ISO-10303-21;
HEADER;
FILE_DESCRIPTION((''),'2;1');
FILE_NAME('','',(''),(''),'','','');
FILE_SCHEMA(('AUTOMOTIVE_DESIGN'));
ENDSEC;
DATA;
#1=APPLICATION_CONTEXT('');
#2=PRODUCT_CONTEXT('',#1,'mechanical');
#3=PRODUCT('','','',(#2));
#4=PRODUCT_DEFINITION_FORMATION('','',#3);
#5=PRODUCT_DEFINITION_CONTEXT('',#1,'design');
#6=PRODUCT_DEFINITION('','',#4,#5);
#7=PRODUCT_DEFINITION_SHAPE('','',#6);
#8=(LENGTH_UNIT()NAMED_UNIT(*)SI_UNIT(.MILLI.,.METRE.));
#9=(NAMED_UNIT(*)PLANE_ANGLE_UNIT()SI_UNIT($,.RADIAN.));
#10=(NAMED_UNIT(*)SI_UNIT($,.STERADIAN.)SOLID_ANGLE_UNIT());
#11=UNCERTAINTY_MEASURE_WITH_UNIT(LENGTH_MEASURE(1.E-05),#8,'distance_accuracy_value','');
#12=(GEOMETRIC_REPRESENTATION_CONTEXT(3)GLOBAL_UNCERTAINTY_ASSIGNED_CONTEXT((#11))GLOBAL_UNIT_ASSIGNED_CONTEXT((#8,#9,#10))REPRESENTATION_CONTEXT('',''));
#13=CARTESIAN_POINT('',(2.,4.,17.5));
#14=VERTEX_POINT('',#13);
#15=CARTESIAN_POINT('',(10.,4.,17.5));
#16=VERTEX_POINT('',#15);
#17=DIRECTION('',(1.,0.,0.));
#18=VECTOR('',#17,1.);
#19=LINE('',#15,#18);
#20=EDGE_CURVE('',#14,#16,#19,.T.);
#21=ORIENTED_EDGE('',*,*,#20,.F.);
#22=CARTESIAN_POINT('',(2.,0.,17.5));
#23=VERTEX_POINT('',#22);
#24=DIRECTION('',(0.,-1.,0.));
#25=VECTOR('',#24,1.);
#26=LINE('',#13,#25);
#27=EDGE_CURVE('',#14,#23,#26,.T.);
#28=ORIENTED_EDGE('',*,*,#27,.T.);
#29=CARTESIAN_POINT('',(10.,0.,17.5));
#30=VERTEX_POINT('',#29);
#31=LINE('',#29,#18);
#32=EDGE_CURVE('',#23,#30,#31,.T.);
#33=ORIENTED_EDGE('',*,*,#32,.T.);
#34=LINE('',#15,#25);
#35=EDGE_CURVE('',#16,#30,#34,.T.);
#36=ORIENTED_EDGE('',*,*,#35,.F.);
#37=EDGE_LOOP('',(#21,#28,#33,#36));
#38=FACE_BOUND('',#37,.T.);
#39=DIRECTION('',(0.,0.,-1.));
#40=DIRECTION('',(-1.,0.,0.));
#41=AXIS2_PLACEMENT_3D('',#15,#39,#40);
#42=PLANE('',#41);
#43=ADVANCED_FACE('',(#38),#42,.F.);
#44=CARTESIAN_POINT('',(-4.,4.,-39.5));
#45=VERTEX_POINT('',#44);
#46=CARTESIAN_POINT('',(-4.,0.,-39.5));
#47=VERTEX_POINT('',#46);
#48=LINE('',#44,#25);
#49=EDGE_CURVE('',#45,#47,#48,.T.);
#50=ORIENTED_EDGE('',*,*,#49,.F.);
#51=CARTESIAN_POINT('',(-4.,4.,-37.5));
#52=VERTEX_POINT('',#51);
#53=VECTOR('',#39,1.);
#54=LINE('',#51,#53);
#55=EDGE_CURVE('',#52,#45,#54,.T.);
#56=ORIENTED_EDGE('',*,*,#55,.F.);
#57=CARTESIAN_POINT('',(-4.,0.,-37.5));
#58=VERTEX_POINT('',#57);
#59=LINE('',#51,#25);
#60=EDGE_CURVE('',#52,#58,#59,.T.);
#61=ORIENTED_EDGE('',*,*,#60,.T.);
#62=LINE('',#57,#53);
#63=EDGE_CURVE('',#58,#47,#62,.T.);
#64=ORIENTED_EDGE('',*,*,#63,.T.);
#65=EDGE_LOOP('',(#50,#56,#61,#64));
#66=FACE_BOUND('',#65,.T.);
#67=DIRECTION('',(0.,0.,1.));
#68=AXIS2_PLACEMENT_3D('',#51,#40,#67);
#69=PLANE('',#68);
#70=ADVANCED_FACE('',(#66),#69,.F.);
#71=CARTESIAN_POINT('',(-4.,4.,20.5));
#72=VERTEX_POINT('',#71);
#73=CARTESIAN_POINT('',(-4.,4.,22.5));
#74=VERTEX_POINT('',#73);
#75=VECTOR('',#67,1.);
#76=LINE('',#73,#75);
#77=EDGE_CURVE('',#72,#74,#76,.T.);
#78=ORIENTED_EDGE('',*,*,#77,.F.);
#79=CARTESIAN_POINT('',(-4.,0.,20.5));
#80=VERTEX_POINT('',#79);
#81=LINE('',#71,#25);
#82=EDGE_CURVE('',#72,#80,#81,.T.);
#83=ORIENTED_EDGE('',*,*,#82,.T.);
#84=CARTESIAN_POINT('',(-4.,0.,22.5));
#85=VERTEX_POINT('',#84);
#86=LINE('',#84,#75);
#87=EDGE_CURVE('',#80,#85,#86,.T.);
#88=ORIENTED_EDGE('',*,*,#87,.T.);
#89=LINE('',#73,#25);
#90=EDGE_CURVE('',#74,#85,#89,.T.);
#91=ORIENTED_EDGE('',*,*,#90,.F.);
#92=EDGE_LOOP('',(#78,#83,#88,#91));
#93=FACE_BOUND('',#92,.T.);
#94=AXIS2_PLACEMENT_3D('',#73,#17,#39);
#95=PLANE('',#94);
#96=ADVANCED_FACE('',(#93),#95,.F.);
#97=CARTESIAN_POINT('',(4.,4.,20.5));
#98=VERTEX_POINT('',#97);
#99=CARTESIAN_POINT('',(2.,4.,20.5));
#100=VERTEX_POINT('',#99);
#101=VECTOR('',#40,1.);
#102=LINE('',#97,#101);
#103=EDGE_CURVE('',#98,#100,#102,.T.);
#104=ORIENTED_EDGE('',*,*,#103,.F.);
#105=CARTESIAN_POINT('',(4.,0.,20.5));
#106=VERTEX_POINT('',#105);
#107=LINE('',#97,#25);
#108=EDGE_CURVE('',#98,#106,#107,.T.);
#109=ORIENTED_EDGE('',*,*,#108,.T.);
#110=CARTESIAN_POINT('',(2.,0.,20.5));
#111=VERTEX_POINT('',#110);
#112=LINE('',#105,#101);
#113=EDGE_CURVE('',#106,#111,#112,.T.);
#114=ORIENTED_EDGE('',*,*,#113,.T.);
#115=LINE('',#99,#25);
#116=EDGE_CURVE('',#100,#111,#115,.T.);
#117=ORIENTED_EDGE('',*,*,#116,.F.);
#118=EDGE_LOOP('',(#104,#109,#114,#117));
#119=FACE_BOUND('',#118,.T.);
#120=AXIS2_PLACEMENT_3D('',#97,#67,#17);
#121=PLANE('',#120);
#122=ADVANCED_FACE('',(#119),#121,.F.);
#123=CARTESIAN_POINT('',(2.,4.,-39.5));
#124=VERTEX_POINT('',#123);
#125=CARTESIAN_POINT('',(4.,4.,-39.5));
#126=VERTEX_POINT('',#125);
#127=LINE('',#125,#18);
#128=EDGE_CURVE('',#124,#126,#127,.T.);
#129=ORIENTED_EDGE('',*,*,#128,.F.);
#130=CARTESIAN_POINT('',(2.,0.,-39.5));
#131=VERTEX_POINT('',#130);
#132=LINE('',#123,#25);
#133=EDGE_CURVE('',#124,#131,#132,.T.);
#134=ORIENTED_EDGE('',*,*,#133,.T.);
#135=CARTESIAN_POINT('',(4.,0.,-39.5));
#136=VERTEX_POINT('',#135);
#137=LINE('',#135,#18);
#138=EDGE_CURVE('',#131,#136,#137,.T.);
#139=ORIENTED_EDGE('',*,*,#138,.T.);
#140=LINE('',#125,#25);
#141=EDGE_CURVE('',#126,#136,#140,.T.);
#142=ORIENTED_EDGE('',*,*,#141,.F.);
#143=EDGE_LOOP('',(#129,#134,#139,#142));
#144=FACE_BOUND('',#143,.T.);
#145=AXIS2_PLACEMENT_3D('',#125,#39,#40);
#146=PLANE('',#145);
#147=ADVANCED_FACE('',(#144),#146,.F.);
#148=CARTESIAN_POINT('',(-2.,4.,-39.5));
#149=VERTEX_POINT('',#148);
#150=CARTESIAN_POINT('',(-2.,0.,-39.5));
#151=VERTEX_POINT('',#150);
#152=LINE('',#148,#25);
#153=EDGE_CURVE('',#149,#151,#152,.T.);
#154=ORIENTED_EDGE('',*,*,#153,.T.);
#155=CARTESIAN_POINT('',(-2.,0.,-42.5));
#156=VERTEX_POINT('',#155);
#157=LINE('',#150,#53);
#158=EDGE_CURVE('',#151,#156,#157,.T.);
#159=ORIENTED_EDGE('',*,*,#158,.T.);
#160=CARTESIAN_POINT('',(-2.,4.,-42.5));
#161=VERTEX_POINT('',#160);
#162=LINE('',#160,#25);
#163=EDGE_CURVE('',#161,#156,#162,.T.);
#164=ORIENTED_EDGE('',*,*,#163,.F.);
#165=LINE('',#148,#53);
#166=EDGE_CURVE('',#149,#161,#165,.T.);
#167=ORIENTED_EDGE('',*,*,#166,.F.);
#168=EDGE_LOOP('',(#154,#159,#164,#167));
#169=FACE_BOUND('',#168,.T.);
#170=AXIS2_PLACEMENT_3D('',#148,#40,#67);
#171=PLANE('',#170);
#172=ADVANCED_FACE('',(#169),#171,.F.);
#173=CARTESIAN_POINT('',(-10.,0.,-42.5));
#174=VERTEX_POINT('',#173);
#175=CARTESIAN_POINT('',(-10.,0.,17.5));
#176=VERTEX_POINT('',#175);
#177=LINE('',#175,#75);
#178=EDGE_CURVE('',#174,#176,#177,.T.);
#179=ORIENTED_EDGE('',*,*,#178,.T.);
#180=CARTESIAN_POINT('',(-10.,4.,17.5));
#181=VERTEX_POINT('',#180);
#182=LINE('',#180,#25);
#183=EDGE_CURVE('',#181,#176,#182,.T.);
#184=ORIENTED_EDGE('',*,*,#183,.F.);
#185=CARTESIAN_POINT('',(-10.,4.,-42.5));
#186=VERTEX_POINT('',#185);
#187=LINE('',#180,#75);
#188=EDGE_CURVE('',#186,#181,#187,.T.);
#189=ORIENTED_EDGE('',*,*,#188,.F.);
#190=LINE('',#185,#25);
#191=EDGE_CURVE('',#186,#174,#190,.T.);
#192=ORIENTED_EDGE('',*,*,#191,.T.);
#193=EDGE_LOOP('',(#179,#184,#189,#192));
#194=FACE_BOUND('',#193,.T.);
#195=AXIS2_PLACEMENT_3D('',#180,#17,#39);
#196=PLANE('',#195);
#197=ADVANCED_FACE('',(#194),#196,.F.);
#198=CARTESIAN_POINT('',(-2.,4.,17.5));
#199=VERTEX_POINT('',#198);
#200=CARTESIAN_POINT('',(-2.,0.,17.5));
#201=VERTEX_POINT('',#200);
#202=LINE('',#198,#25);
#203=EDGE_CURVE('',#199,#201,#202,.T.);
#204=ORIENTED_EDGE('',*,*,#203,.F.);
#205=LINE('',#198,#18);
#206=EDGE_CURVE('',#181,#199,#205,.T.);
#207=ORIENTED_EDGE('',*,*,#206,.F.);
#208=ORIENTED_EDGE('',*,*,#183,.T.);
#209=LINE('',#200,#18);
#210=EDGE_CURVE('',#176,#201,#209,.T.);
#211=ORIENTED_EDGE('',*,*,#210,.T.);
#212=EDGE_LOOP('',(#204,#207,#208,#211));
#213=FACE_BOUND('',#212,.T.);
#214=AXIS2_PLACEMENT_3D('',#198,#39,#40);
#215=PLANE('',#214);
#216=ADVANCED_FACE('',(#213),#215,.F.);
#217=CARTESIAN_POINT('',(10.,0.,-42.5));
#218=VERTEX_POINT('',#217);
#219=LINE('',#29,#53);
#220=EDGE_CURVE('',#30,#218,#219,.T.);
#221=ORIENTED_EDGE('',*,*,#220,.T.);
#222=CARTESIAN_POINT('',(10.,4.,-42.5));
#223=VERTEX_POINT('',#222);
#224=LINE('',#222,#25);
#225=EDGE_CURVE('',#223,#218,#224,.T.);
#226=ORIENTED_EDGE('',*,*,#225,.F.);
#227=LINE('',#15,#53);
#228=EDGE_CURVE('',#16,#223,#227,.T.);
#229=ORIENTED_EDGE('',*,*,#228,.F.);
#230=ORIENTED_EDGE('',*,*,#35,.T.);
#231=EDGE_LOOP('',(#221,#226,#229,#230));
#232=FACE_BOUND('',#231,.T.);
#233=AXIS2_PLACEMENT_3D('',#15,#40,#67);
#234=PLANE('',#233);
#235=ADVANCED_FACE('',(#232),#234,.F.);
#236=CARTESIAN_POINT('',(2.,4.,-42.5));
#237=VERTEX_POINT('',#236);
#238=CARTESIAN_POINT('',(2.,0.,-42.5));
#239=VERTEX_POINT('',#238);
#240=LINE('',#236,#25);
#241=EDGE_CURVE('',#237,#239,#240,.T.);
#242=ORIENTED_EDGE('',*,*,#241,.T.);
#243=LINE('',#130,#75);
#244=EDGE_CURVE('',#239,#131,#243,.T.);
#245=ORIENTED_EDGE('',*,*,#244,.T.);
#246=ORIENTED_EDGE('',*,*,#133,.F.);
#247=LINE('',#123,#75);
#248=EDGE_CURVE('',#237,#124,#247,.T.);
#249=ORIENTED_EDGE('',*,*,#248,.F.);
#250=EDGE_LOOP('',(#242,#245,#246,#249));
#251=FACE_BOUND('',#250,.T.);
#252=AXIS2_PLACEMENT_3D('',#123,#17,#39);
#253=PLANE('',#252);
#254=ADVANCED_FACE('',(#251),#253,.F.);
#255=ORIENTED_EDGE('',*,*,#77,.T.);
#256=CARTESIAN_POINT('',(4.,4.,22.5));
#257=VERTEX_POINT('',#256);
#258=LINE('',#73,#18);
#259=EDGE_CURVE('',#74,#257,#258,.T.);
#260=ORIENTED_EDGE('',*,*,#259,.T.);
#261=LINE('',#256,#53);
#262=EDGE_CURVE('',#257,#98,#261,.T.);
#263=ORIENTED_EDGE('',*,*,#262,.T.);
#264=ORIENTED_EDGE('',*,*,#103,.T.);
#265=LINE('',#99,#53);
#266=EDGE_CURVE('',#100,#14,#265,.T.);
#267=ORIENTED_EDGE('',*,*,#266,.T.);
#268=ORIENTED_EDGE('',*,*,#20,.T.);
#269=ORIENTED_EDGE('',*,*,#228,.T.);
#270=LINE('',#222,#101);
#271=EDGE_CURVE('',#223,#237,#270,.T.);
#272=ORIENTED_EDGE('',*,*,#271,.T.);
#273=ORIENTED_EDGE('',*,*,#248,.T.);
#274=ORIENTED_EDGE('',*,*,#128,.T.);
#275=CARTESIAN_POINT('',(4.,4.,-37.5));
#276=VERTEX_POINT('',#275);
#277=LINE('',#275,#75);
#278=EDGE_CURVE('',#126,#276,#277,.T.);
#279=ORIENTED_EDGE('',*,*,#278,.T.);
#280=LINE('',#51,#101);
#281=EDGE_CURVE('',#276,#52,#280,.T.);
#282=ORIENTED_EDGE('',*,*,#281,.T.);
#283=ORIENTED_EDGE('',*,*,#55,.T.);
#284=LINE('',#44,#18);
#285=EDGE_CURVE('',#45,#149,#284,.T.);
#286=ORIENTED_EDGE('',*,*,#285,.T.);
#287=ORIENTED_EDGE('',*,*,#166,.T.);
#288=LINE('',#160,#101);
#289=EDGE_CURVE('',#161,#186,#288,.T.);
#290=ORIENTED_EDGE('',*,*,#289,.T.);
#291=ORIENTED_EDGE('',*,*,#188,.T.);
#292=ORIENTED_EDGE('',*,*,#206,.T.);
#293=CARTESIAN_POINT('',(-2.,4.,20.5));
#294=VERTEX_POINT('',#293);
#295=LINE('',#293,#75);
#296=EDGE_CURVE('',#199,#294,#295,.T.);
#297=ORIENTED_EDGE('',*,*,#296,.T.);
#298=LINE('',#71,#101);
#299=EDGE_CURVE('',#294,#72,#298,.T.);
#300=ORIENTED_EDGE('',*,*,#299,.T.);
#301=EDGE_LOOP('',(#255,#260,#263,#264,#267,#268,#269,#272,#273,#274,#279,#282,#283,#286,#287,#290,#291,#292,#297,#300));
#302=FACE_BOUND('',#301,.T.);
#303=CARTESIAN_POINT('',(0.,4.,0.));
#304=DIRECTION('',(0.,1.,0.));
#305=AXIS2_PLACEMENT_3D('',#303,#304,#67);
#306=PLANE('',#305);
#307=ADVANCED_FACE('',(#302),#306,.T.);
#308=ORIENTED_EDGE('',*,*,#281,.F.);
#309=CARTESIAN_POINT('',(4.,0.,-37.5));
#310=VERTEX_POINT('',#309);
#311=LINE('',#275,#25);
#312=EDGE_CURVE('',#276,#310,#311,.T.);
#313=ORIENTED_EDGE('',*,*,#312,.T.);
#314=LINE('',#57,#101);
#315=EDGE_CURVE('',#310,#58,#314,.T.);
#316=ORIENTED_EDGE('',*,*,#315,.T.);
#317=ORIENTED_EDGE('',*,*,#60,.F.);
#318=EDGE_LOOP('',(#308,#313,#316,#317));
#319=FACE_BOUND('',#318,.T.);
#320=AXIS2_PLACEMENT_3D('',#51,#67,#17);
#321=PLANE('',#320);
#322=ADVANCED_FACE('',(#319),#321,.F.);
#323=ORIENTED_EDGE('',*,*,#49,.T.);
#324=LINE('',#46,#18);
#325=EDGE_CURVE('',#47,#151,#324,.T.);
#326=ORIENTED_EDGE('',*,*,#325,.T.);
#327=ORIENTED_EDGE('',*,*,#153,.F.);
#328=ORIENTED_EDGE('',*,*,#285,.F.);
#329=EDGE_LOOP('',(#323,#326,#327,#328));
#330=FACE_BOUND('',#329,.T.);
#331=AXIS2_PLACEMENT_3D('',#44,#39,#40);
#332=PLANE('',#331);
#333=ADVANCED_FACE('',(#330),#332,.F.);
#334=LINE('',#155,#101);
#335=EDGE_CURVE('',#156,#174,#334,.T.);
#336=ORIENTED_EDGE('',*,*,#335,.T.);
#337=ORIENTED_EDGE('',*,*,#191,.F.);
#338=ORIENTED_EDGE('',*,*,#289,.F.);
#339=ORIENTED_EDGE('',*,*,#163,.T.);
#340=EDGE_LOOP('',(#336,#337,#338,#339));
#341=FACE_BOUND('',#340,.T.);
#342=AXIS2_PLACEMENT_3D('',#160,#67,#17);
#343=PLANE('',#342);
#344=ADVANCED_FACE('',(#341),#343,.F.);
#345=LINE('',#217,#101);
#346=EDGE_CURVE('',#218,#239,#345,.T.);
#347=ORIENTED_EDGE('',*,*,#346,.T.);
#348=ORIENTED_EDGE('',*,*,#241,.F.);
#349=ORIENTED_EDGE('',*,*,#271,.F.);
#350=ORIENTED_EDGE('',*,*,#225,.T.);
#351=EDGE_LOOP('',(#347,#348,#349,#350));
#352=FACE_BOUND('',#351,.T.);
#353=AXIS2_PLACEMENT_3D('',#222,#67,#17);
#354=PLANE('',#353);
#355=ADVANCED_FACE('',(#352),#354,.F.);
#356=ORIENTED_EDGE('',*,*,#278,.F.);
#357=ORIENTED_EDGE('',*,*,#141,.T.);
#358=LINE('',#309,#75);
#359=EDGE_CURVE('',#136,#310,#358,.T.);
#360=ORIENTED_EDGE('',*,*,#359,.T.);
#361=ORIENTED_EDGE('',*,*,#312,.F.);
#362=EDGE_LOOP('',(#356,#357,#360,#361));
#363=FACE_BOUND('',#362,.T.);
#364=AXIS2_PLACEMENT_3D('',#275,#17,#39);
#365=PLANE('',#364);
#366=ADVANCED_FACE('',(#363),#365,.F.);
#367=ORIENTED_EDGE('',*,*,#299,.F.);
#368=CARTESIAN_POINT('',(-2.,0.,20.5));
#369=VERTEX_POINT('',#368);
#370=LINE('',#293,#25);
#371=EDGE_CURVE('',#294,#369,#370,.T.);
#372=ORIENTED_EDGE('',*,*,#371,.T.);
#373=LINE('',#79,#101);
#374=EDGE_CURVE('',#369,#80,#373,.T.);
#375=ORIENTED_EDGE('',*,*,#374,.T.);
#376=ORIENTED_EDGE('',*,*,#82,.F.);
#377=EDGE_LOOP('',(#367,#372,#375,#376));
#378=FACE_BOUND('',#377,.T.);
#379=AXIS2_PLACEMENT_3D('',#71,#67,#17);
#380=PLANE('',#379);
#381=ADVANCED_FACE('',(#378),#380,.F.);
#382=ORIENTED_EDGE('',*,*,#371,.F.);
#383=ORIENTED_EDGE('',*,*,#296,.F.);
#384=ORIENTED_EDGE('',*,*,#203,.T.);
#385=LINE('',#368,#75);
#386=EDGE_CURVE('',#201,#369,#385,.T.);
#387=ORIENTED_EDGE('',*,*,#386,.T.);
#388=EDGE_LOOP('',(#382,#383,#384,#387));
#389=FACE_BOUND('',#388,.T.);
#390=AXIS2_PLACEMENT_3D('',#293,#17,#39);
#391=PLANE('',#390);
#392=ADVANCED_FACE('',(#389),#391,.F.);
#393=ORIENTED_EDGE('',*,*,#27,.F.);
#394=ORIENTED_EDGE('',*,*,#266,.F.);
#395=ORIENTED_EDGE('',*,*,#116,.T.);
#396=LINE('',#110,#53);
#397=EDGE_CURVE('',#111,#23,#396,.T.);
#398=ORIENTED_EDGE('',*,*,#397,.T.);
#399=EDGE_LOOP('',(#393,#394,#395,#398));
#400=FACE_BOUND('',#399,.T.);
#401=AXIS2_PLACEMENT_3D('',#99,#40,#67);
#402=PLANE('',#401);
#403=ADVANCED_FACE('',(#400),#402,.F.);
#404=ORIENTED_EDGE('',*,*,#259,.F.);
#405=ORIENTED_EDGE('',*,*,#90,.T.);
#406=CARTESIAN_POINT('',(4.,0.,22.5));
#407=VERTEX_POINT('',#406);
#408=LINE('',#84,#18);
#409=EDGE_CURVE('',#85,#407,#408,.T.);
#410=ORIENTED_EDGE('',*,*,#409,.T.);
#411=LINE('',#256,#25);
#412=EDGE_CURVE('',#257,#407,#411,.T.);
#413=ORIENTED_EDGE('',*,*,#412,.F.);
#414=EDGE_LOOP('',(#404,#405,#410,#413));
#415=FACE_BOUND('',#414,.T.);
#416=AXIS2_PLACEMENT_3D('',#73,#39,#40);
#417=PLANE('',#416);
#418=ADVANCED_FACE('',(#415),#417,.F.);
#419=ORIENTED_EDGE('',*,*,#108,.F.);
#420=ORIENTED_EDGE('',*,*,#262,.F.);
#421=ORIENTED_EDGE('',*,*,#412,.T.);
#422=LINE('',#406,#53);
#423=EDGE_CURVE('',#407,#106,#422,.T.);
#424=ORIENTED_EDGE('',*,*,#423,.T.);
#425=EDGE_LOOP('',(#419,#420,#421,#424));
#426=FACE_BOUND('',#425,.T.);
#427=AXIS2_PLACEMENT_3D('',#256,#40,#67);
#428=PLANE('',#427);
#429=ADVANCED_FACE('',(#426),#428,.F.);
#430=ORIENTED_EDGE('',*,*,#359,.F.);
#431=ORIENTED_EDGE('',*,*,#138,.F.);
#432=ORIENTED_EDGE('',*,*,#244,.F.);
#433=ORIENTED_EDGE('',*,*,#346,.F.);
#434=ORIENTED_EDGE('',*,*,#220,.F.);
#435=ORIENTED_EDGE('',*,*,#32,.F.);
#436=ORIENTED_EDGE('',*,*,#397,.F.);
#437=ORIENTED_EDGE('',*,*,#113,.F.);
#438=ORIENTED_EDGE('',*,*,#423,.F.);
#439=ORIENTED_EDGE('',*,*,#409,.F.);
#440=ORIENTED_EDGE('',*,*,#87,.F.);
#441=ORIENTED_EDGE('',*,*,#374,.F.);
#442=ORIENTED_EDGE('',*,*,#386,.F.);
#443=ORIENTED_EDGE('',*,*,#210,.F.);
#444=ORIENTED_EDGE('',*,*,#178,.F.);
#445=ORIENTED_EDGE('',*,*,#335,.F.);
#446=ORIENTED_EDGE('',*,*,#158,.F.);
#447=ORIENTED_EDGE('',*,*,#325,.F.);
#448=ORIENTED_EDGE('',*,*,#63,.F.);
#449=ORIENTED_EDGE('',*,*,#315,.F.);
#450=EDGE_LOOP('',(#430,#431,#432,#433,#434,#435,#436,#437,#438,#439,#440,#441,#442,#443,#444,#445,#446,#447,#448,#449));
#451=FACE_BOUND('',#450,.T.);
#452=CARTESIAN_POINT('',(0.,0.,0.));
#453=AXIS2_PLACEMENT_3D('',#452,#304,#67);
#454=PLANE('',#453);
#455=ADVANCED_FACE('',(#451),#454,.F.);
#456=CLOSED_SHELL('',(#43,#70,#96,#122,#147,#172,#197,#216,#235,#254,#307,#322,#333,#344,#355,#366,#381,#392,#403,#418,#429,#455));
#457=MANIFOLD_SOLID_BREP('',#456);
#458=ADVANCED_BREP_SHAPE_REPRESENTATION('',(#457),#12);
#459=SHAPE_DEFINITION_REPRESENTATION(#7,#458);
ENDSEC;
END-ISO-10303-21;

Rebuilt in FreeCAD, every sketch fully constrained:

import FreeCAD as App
import Part
import Sketcher
from FreeCAD import Vector
Q = App.Units.Quantity


def add_polygon(sketch, points):
    """Adds a closed chain of lines whose ends are joined by coincident constraints."""
    first, n = sketch.GeometryCount, len(points)
    for a, b in zip(points, points[1:] + points[:1]):
        sketch.addGeometry(Part.LineSegment(App.Vector(*a, 0), App.Vector(*b, 0)), False)
    for i in range(n):
        sketch.addConstraint(Sketcher.Constraint("Coincident", first + i, 2, first + (i + 1) % n, 1))

doc = App.newDocument("Part")
body = doc.addObject("PartDesign::Body", "Body")

sketch1 = body.newObject("Sketcher::SketchObject", "Sketch")
sketch1.AttachmentSupport = (doc.getObject("XZ_Plane"), [""])
sketch1.MapMode = "FlatFace"
add_polygon(sketch1, [(2, 17.5), (10, 17.5), (10, -42.5), (2, -42.5), (2, -39.5), (4, -39.5), (4, -37.5), (-4, -37.5), (-4, -39.5), (-2, -39.5), (-2, -42.5), (-10, -42.5), (-10, 17.5), (-2, 17.5), (-2, 20.5), (-4, 20.5), (-4, 22.5), (4, 22.5), (4, 20.5), (2, 20.5)])
sketch1.addConstraint(Sketcher.Constraint("Horizontal", 0))
sketch1.addConstraint(Sketcher.Constraint("Vertical", 1))
sketch1.addConstraint(Sketcher.Constraint("Horizontal", 2))
sketch1.addConstraint(Sketcher.Constraint("Vertical", 3))
sketch1.addConstraint(Sketcher.Constraint("Horizontal", 4))
sketch1.addConstraint(Sketcher.Constraint("Vertical", 5))
sketch1.addConstraint(Sketcher.Constraint("Horizontal", 6))
sketch1.addConstraint(Sketcher.Constraint("Vertical", 7))
sketch1.addConstraint(Sketcher.Constraint("Horizontal", 8))
sketch1.addConstraint(Sketcher.Constraint("Vertical", 9))
sketch1.addConstraint(Sketcher.Constraint("Horizontal", 10))
sketch1.addConstraint(Sketcher.Constraint("Vertical", 11))
sketch1.addConstraint(Sketcher.Constraint("Horizontal", 12))
sketch1.addConstraint(Sketcher.Constraint("Vertical", 13))
sketch1.addConstraint(Sketcher.Constraint("Horizontal", 14))
sketch1.addConstraint(Sketcher.Constraint("Vertical", 15))
sketch1.addConstraint(Sketcher.Constraint("Horizontal", 16))
sketch1.addConstraint(Sketcher.Constraint("Vertical", 17))
sketch1.addConstraint(Sketcher.Constraint("Horizontal", 18))
sketch1.addConstraint(Sketcher.Constraint("Vertical", 19))
sketch1.addConstraint(Sketcher.Constraint("Symmetric", 4, 2, 7, 2, -2))
sketch1.addConstraint(Sketcher.Constraint("Symmetric", 2, 2, 9, 2, -2))
sketch1.addConstraint(Sketcher.Constraint("Symmetric", 0, 2, 11, 2, -2))
sketch1.addConstraint(Sketcher.Constraint("Symmetric", 14, 2, 17, 2, -2))
sketch1.addConstraint(Sketcher.Constraint("Vertical", 9, 2, 12, 2))
sketch1.addConstraint(Sketcher.Constraint("Vertical", 7, 2, 14, 2))
sketch1.addConstraint(Sketcher.Constraint("Vertical", 3, 2, 18, 2))
sketch1.addConstraint(Sketcher.Constraint("Equal", 2, 6))
sketch1.addConstraint(Sketcher.Constraint("Equal", 18, 5))
sketch1.addConstraint(Sketcher.Constraint("Equal", 9, 13))
sketch1.addConstraint(Sketcher.Constraint("Equal", 7, 15))
sketch1.addConstraint(Sketcher.Constraint("DistanceX", 0, 1, 0, 2, Q("8 mm")))
sketch1.addConstraint(Sketcher.Constraint("DistanceX", 4, 1, 4, 2, Q("2 mm")))
sketch1.addConstraint(Sketcher.Constraint("DistanceY", 1, 2, 1, 1, Q("60 mm")))
sketch1.addConstraint(Sketcher.Constraint("DistanceY", 3, 1, 3, 2, Q("3 mm")))
sketch1.addConstraint(Sketcher.Constraint("DistanceY", -1, 1, 0, 2, Q("17.5 mm")))
pad1 = body.newObject("PartDesign::Pad", "Pad")
pad1.Profile = sketch1
pad1.Length = 4
pad1.Reversed = True

doc.recompute()
